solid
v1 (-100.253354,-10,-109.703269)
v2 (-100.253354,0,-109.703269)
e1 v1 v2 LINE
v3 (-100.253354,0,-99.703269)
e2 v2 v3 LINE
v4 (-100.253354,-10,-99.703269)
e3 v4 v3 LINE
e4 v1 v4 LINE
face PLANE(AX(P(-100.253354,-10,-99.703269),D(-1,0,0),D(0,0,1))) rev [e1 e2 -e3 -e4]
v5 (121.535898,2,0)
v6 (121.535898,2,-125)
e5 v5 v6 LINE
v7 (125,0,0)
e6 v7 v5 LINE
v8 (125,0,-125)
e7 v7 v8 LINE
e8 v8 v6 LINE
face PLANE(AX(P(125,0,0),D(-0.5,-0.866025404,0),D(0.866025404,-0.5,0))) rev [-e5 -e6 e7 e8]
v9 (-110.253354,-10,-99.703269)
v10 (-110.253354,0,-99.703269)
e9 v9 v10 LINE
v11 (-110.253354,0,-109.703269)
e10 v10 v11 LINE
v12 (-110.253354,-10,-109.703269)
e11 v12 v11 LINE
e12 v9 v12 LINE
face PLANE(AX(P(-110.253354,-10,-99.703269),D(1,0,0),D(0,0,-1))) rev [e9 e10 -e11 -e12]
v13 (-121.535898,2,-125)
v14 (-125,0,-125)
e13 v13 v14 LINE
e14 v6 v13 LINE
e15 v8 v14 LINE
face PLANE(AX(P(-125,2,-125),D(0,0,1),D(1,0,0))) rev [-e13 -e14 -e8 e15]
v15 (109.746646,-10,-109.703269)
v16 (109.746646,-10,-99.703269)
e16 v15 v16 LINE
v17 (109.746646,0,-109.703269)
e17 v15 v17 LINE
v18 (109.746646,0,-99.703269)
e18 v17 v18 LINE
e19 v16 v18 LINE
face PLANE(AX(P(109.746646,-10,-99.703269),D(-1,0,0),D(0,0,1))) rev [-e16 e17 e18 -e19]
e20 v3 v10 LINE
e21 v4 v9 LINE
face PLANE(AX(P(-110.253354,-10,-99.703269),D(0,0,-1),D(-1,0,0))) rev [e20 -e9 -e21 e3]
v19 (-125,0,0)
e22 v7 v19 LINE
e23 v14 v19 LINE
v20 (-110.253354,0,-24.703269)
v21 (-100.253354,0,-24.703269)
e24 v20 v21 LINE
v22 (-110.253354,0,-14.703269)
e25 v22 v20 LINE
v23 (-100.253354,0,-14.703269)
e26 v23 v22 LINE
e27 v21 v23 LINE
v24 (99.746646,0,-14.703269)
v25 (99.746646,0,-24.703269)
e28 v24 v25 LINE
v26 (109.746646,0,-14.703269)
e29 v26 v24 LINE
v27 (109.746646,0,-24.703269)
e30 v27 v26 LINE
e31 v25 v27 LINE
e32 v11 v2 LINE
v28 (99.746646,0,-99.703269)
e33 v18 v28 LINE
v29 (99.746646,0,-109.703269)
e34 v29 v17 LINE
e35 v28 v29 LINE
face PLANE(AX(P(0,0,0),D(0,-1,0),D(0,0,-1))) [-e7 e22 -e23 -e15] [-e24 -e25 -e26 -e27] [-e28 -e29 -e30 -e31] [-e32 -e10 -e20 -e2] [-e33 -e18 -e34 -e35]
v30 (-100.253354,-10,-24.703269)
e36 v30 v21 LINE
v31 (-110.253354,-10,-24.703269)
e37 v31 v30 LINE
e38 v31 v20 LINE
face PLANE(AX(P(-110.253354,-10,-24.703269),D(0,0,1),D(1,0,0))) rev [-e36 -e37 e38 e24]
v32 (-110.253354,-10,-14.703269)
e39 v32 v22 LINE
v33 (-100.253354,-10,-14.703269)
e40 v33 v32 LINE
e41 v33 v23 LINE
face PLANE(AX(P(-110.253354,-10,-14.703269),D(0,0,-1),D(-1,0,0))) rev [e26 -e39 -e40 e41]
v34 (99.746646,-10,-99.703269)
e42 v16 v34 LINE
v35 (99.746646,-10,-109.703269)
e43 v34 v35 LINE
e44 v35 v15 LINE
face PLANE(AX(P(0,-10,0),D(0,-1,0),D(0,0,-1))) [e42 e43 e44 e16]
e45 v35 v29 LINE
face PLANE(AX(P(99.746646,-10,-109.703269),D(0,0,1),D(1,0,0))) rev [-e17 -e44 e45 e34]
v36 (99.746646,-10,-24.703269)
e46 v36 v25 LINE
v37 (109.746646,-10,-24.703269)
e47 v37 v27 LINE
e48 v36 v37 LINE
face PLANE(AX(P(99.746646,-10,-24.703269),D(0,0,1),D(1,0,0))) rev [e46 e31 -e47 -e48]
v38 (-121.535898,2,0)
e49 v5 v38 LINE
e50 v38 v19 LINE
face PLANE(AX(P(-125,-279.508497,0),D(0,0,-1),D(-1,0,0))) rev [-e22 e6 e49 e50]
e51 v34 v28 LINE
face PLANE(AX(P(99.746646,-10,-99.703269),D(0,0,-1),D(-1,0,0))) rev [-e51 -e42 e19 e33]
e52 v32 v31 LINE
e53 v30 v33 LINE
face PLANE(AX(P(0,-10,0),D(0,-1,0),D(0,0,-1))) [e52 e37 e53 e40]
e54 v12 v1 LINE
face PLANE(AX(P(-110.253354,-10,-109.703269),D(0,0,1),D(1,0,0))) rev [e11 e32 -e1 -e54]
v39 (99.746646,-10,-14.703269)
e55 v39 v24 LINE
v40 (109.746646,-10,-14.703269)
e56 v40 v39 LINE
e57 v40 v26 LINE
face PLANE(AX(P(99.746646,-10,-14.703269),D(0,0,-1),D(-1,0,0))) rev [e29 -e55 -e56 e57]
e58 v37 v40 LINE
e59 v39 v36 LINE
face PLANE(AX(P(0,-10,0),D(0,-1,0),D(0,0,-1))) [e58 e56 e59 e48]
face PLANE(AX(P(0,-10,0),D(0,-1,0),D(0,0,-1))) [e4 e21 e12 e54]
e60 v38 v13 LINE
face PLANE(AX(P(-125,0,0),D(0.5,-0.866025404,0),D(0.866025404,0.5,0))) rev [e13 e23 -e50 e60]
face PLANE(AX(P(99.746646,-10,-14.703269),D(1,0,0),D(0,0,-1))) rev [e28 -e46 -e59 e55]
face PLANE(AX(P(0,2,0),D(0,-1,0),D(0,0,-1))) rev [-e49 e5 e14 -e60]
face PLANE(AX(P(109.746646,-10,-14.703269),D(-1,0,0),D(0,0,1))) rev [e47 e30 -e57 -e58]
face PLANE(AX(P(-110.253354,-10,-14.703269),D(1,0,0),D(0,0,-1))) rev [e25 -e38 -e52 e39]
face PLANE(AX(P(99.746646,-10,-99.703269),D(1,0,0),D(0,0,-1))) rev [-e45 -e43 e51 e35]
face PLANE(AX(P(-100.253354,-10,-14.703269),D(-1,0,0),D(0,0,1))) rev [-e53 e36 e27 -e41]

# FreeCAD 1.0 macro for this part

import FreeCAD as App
import Part
import Sketcher

V = App.Vector
Q = App.Units.Quantity


def add_polygon(sketch, points):
    """Adds a closed chain of lines whose ends are joined by coincident constraints."""
    first, n = sketch.GeometryCount, len(points)
    for a, b in zip(points, points[1:] + points[:1]):
        sketch.addGeometry(Part.LineSegment(App.Vector(*a, 0), App.Vector(*b, 0)), False)
    for i in range(n):
        sketch.addConstraint(Sketcher.Constraint("Coincident", first + i, 2, first + (i + 1) % n, 1))

doc = App.newDocument("Part")
body = doc.addObject("PartDesign::Body", "Body")

# Sketch on XZ plane
sketch1 = body.newObject("Sketcher::SketchObject", "Sketch")
sketch1.AttachmentSupport = (doc.getObject("XZ_Plane"), [""])
sketch1.MapMode = "FlatFace"
add_polygon(sketch1, [(-125, -125), (-125, 125), (125, 125), (125, -125)])  # lines 0-3
sketch1.addConstraint([
    Sketcher.Constraint("Vertical", 0),
    Sketcher.Constraint("Horizontal", 1),
    Sketcher.Constraint("Vertical", 2),
    Sketcher.Constraint("Horizontal", 3),
    Sketcher.Constraint("Symmetric", 0, 2, 2, 2, -1, 1),
    Sketcher.Constraint("Equal", 3, 0),
    Sketcher.Constraint("DistanceX", 1, 1, 1, 2, Q("250 mm")),
])
pad1 = body.newObject("PartDesign::Pad", "Pad")
pad1.Profile = sketch1
pad1.Length = 2
pad1.Reversed = True

# Sketch on XZ plane
sketch2 = body.newObject("Sketcher::SketchObject", "Sketch001")
sketch2.AttachmentSupport = (doc.getObject("XZ_Plane"), [""])
sketch2.MapMode = "FlatFace"
sketch2.AttachmentOffset = App.Placement(V(0, 0, -2), App.Rotation())
add_polygon(sketch2, [(-125, 0), (-125, 125), (125, 125), (125, 0)])  # lines 0-3
sketch2.addConstraint([
    Sketcher.Constraint("Vertical", 0),
    Sketcher.Constraint("Horizontal", 1),
    Sketcher.Constraint("Vertical", 2),
    Sketcher.Constraint("Horizontal", 3),
    Sketcher.Constraint("Symmetric", 2, 2, 3, 2, -1, 1),
    Sketcher.Constraint("DistanceX", 1, 1, 1, 2, Q("250 mm")),
    Sketcher.Constraint("DistanceY", 0, 1, 0, 2, Q("125 mm")),
])
pocket1 = body.newObject("PartDesign::Pocket", "Pocket")
pocket1.Profile = sketch2
pocket1.Length = 2
pocket1.Reversed = True

# Sketch on XZ plane
sketch3 = body.newObject("Sketcher::SketchObject", "Sketch002")
sketch3.AttachmentSupport = (doc.getObject("XZ_Plane"), [""])
sketch3.MapMode = "FlatFace"
add_polygon(sketch3, [(-110, -15), (-110, -25), (-100, -25), (-100, -15)])  # lines 0-3
add_polygon(sketch3, [(-110, -100), (-110, -110), (-100, -110), (-100, -100)])  # lines 4-7
add_polygon(sketch3, [(100, -15), (100, -25), (110, -25), (110, -15)])  # lines 8-11
add_polygon(sketch3, [(100, -100), (100, -110), (110, -110), (110, -100)])  # lines 12-15
sketch3.addConstraint([
    Sketcher.Constraint("Vertical", 0),
    Sketcher.Constraint("Horizontal", 1),
    Sketcher.Constraint("Vertical", 2),
    Sketcher.Constraint("Horizontal", 3),
    Sketcher.Constraint("Vertical", 4),
    Sketcher.Constraint("Horizontal", 5),
    Sketcher.Constraint("Vertical", 6),
    Sketcher.Constraint("Horizontal", 7),
    Sketcher.Constraint("Vertical", 8),
    Sketcher.Constraint("Horizontal", 9),
    Sketcher.Constraint("Vertical", 10),
    Sketcher.Constraint("Horizontal", 11),
    Sketcher.Constraint("Vertical", 12),
    Sketcher.Constraint("Horizontal", 13),
    Sketcher.Constraint("Vertical", 14),
    Sketcher.Constraint("Horizontal", 15),
    Sketcher.Constraint("Horizontal", 1, 2, 8, 2),
    Sketcher.Constraint("Horizontal", 3, 2, 10, 2),
    Sketcher.Constraint("Horizontal", 5, 2, 12, 2),
    Sketcher.Constraint("Horizontal", 7, 2, 14, 2),
    Sketcher.Constraint("Vertical", 3, 2, 4, 2),
    Sketcher.Constraint("Vertical", 2, 2, 5, 2),
    Sketcher.Constraint("Vertical", 11, 2, 12, 2),
    Sketcher.Constraint("Vertical", 10, 2, 13, 2),
    Sketcher.Constraint("Equal", 7, 9),
    Sketcher.Constraint("Equal", 15, 0),
    Sketcher.Constraint("Equal", 2, 4),
    Sketcher.Constraint("DistanceX", 1, 1, 1, 2, Q("10 mm")),
    Sketcher.Constraint("DistanceY", 4, 2, 0, 2, Q("85 mm")),
    Sketcher.Constraint("DistanceX", 1, 2, 8, 2, Q("200 mm")),
    Sketcher.Constraint("DistanceY", 0, 2, -1, 1, Q("24.703269 mm")),
    Sketcher.Constraint("DistanceX", 0, 2, -1, 1, Q("110.253354 mm")),
])
pad2 = body.newObject("PartDesign::Pad", "Pad001")
pad2.Profile = sketch3
pad2.Length = 10

# Sketch on XY plane
sketch4 = body.newObject("Sketcher::SketchObject", "Sketch003")
sketch4.AttachmentSupport = (doc.getObject("XY_Plane"), [""])
sketch4.MapMode = "FlatFace"
sketch4.AttachmentOffset = App.Placement(V(0, 0, -125), App.Rotation())
add_polygon(sketch4, [(125, 2), (125, 0), (121.5, 2)])  # lines 0-2
add_polygon(sketch4, [(-125, 2), (-121.5, 2), (-125, 0)])  # lines 3-5
sketch4.addConstraint([
    Sketcher.Constraint("Vertical", 0),
    Sketcher.Constraint("Horizontal", 2),
    Sketcher.Constraint("Horizontal", 3),
    Sketcher.Constraint("Vertical", 5),
    Sketcher.Constraint("Symmetric", 0, 2, 4, 2, -1, 1),
    Sketcher.Constraint("Symmetric", 1, 2, 3, 2, -2),
    Sketcher.Constraint("PointOnObject", 0, 2, -1),
    Sketcher.Constraint("DistanceY", 0, 2, 0, 1, Q("2 mm")),
    Sketcher.Constraint("Angle", 1, Q("150 deg")),
    Sketcher.Constraint("DistanceX", -1, 1, 0, 2, Q("125 mm")),
])
pocket2 = body.newObject("PartDesign::Pocket", "Pocket001")
pocket2.Profile = sketch4
pocket2.Type = "ThroughAll"
pocket2.Reversed = True

doc.recompute()
